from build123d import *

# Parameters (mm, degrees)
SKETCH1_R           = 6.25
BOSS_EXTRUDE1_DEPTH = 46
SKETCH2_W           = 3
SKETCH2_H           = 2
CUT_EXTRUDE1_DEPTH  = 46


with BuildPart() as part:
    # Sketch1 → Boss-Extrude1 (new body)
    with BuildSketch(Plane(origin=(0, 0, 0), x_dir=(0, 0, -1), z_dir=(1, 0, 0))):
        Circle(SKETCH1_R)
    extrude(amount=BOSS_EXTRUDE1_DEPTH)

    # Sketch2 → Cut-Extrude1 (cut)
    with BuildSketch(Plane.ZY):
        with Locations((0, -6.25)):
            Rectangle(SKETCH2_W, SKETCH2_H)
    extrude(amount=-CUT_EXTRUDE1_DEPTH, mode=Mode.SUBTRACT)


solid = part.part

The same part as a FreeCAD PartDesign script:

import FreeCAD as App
import Part
import Sketcher


def add_polygon(sketch, points):
    """Adds a closed chain of lines whose ends are joined by coincident constraints."""
    first, n = sketch.GeometryCount, len(points)
    for a, b in zip(points, points[1:] + points[:1]):
        sketch.addGeometry(Part.LineSegment(App.Vector(*a, 0), App.Vector(*b, 0)), False)
    for i in range(n):
        sketch.addConstraint(Sketcher.Constraint("Coincident", first + i, 2, first + (i + 1) % n, 1))

doc = App.newDocument("Part")
body = doc.addObject("PartDesign::Body", "Body")

# Sketch on YZ plane
sketch1 = body.newObject("Sketcher::SketchObject", "Sketch")
sketch1.AttachmentSupport = (doc.getObject("YZ_Plane"), [""])
sketch1.MapMode = "FlatFace"
sketch1.addGeometry(Part.Circle(App.Vector(0, 0, 0), App.Vector(0, 0, 1), 6), False)
sketch1.addConstraint(Sketcher.Constraint("Coincident", 0, 3, -1, 1))
sketch1.addConstraint(Sketcher.Constraint("Diameter", 0, 12.5))
pad1 = body.newObject("PartDesign::Pad", "Pad")
pad1.Profile = sketch1
pad1.Length = 46

# Sketch on YZ plane
sketch2 = body.newObject("Sketcher::SketchObject", "Sketch001")
sketch2.AttachmentSupport = (doc.getObject("YZ_Plane"), [""])
sketch2.MapMode = "FlatFace"
add_polygon(sketch2, [(-5.2, -1.5), (-7.2, -1.5), (-7.2, 1.5), (-5.2, 1.5)])  # lines 0-3
sketch2.addConstraint(Sketcher.Constraint("Horizontal", 0))
sketch2.addConstraint(Sketcher.Constraint("Vertical", 1))
sketch2.addConstraint(Sketcher.Constraint("Horizontal", 2))
sketch2.addConstraint(Sketcher.Constraint("Vertical", 3))
sketch2.addConstraint(Sketcher.Constraint("DistanceX", 0, 2, 0, 1, 2.0))
sketch2.addConstraint(Sketcher.Constraint("DistanceY", 1, 1, 1, 2, 3.0))
sketch2.addConstraint(Sketcher.Constraint("DistanceY", 0, 2, -1, 1, 1.5))
sketch2.addConstraint(Sketcher.Constraint("DistanceX", 0, 2, -1, 1, 7.25))
pocket1 = body.newObject("PartDesign::Pocket", "Pocket")
pocket1.Profile = sketch2
pocket1.Length = 46
pocket1.Reversed = True

doc.recompute()
